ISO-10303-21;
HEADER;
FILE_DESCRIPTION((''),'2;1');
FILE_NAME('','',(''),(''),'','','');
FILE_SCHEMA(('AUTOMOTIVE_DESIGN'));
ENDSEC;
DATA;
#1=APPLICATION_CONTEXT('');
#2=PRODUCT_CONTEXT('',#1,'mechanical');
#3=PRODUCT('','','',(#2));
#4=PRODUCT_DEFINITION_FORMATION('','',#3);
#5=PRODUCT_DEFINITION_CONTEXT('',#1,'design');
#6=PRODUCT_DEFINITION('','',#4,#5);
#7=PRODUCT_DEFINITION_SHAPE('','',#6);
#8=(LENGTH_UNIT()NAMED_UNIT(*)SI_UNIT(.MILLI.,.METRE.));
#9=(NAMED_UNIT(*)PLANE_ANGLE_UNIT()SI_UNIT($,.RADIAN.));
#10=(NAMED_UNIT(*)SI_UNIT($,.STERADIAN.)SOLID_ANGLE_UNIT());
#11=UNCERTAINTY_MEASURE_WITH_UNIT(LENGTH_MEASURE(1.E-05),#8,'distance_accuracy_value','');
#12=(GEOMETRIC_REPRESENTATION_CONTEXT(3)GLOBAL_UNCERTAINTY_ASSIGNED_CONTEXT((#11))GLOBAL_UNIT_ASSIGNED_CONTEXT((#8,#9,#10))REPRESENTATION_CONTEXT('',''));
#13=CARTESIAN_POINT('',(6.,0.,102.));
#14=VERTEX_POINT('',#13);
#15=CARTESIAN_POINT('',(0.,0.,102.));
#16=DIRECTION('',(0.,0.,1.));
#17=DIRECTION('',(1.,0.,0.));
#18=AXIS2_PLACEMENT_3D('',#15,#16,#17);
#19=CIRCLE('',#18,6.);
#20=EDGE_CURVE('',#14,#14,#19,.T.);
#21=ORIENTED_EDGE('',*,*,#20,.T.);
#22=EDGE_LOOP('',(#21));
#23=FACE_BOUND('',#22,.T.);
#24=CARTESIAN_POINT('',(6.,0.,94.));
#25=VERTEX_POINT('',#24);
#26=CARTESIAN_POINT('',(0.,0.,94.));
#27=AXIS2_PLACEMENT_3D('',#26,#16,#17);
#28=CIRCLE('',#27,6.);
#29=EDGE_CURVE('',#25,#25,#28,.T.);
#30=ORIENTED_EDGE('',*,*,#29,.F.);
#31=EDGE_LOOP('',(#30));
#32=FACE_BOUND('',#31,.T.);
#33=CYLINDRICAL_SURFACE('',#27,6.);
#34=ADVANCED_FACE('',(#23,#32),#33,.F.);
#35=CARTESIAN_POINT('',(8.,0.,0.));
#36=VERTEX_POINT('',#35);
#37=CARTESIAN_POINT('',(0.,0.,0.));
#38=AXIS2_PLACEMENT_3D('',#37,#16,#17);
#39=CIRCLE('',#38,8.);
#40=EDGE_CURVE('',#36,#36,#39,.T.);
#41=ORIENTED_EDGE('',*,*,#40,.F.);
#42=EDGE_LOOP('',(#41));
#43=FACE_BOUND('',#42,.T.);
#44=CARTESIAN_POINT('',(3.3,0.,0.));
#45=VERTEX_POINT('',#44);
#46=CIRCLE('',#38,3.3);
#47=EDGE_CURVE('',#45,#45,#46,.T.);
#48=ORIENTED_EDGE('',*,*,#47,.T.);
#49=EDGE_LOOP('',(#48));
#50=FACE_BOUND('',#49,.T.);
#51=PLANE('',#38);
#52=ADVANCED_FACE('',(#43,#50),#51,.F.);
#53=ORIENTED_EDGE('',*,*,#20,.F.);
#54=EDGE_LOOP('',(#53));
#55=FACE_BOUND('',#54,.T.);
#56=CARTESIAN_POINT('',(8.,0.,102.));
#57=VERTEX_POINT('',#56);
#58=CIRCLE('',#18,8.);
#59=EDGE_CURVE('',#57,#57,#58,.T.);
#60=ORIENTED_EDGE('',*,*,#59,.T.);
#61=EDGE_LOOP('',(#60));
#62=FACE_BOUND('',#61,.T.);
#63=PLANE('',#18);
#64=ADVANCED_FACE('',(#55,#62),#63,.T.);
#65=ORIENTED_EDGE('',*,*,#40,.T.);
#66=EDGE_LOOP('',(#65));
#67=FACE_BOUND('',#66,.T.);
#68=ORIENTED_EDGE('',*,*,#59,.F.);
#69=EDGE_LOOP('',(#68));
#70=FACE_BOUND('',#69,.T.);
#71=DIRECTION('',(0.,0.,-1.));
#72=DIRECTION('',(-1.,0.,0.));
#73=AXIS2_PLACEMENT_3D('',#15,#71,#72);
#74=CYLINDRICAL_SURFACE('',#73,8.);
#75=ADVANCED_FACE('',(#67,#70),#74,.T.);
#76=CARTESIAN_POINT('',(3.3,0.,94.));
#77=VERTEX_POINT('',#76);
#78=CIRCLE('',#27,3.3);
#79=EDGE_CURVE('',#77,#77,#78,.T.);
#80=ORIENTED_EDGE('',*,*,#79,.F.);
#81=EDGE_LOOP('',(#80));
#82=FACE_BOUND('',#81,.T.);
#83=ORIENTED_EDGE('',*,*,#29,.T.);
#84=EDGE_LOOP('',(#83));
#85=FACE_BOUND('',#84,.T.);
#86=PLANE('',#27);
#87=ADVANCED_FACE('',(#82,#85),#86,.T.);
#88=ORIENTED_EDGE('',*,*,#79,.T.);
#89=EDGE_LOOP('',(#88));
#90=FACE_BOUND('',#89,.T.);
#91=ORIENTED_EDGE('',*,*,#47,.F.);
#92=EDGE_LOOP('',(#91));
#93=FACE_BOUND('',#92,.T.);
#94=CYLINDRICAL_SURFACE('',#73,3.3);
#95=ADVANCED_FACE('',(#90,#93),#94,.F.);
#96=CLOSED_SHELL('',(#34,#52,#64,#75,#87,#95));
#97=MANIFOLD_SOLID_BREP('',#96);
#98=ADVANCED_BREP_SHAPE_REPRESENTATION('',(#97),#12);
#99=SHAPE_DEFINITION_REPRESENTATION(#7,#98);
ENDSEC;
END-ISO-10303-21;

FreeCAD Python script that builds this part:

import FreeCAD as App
import Part
import Sketcher
from FreeCAD import Vector

doc = App.newDocument("Part")
params = doc.addObject("Spreadsheet::Sheet", "Params")
for row, (alias, value) in enumerate([
    ("sketch1_diameter", "16 mm"),
    ("sketch1_diameter2", "6.6 mm"),
    ("pad1_length", "102 mm"),
    ("sketch2_diameter", "12 mm"),
    ("pocket1_length", "8 mm"),
], start=1):
    params.set(f"A{row}", alias)
    params.set(f"B{row}", "=" + value)
    params.setAlias(f"B{row}", alias)

body = doc.addObject("PartDesign::Body", "Body")

# Sketch on XY plane
sketch1 = doc.addObject("Sketcher::SketchObject", "Sketch")
body.addObject(sketch1)
sketch1.AttachmentSupport = (doc.XY_Plane, [""])
sketch1.MapMode = "FlatFace"
sketch1.addGeometry(Part.Circle(Vector(0, 0, 0), Vector(0, 0, 1), 8), False)
sketch1.addGeometry(Part.Circle(Vector(0, 0, 0), Vector(0, 0, 1), 3.3), False)
sketch1.addConstraint(Sketcher.Constraint("Coincident", 0, 3, -1, 1))
sketch1.addConstraint(Sketcher.Constraint("Coincident", 1, 3, -1, 1))
sketch1.addConstraint(Sketcher.Constraint("Diameter", 0, 16.0))
sketch1.addConstraint(Sketcher.Constraint("Diameter", 1, 6.6))
sketch1.setExpression("Constraints[2]", "Params.sketch1_diameter")
sketch1.setExpression("Constraints[3]", "Params.sketch1_diameter2")
pad1 = doc.addObject("PartDesign::Pad", "Pad")
body.addObject(pad1)
pad1.Profile = sketch1
pad1.setExpression("Length", "Params.pad1_length")

# Sketch on XY plane
sketch2 = doc.addObject("Sketcher::SketchObject", "Sketch001")
body.addObject(sketch2)
sketch2.AttachmentSupport = (doc.XY_Plane, [""])
sketch2.MapMode = "FlatFace"
sketch2.AttachmentOffset = App.Placement(Vector(0, 0, 102), App.Rotation())
sketch2.addGeometry(Part.Circle(Vector(0, 0, 0), Vector(0, 0, 1), 6), False)
sketch2.addConstraint(Sketcher.Constraint("Coincident", 0, 3, -1, 1))
sketch2.addConstraint(Sketcher.Constraint("Diameter", 0, 12.0))
sketch2.setExpression("Constraints[1]", "Params.sketch2_diameter")
pocket1 = doc.addObject("PartDesign::Pocket", "Pocket")
body.addObject(pocket1)
pocket1.Profile = sketch2
pocket1.setExpression("Length", "Params.pocket1_length")

doc.recompute()
